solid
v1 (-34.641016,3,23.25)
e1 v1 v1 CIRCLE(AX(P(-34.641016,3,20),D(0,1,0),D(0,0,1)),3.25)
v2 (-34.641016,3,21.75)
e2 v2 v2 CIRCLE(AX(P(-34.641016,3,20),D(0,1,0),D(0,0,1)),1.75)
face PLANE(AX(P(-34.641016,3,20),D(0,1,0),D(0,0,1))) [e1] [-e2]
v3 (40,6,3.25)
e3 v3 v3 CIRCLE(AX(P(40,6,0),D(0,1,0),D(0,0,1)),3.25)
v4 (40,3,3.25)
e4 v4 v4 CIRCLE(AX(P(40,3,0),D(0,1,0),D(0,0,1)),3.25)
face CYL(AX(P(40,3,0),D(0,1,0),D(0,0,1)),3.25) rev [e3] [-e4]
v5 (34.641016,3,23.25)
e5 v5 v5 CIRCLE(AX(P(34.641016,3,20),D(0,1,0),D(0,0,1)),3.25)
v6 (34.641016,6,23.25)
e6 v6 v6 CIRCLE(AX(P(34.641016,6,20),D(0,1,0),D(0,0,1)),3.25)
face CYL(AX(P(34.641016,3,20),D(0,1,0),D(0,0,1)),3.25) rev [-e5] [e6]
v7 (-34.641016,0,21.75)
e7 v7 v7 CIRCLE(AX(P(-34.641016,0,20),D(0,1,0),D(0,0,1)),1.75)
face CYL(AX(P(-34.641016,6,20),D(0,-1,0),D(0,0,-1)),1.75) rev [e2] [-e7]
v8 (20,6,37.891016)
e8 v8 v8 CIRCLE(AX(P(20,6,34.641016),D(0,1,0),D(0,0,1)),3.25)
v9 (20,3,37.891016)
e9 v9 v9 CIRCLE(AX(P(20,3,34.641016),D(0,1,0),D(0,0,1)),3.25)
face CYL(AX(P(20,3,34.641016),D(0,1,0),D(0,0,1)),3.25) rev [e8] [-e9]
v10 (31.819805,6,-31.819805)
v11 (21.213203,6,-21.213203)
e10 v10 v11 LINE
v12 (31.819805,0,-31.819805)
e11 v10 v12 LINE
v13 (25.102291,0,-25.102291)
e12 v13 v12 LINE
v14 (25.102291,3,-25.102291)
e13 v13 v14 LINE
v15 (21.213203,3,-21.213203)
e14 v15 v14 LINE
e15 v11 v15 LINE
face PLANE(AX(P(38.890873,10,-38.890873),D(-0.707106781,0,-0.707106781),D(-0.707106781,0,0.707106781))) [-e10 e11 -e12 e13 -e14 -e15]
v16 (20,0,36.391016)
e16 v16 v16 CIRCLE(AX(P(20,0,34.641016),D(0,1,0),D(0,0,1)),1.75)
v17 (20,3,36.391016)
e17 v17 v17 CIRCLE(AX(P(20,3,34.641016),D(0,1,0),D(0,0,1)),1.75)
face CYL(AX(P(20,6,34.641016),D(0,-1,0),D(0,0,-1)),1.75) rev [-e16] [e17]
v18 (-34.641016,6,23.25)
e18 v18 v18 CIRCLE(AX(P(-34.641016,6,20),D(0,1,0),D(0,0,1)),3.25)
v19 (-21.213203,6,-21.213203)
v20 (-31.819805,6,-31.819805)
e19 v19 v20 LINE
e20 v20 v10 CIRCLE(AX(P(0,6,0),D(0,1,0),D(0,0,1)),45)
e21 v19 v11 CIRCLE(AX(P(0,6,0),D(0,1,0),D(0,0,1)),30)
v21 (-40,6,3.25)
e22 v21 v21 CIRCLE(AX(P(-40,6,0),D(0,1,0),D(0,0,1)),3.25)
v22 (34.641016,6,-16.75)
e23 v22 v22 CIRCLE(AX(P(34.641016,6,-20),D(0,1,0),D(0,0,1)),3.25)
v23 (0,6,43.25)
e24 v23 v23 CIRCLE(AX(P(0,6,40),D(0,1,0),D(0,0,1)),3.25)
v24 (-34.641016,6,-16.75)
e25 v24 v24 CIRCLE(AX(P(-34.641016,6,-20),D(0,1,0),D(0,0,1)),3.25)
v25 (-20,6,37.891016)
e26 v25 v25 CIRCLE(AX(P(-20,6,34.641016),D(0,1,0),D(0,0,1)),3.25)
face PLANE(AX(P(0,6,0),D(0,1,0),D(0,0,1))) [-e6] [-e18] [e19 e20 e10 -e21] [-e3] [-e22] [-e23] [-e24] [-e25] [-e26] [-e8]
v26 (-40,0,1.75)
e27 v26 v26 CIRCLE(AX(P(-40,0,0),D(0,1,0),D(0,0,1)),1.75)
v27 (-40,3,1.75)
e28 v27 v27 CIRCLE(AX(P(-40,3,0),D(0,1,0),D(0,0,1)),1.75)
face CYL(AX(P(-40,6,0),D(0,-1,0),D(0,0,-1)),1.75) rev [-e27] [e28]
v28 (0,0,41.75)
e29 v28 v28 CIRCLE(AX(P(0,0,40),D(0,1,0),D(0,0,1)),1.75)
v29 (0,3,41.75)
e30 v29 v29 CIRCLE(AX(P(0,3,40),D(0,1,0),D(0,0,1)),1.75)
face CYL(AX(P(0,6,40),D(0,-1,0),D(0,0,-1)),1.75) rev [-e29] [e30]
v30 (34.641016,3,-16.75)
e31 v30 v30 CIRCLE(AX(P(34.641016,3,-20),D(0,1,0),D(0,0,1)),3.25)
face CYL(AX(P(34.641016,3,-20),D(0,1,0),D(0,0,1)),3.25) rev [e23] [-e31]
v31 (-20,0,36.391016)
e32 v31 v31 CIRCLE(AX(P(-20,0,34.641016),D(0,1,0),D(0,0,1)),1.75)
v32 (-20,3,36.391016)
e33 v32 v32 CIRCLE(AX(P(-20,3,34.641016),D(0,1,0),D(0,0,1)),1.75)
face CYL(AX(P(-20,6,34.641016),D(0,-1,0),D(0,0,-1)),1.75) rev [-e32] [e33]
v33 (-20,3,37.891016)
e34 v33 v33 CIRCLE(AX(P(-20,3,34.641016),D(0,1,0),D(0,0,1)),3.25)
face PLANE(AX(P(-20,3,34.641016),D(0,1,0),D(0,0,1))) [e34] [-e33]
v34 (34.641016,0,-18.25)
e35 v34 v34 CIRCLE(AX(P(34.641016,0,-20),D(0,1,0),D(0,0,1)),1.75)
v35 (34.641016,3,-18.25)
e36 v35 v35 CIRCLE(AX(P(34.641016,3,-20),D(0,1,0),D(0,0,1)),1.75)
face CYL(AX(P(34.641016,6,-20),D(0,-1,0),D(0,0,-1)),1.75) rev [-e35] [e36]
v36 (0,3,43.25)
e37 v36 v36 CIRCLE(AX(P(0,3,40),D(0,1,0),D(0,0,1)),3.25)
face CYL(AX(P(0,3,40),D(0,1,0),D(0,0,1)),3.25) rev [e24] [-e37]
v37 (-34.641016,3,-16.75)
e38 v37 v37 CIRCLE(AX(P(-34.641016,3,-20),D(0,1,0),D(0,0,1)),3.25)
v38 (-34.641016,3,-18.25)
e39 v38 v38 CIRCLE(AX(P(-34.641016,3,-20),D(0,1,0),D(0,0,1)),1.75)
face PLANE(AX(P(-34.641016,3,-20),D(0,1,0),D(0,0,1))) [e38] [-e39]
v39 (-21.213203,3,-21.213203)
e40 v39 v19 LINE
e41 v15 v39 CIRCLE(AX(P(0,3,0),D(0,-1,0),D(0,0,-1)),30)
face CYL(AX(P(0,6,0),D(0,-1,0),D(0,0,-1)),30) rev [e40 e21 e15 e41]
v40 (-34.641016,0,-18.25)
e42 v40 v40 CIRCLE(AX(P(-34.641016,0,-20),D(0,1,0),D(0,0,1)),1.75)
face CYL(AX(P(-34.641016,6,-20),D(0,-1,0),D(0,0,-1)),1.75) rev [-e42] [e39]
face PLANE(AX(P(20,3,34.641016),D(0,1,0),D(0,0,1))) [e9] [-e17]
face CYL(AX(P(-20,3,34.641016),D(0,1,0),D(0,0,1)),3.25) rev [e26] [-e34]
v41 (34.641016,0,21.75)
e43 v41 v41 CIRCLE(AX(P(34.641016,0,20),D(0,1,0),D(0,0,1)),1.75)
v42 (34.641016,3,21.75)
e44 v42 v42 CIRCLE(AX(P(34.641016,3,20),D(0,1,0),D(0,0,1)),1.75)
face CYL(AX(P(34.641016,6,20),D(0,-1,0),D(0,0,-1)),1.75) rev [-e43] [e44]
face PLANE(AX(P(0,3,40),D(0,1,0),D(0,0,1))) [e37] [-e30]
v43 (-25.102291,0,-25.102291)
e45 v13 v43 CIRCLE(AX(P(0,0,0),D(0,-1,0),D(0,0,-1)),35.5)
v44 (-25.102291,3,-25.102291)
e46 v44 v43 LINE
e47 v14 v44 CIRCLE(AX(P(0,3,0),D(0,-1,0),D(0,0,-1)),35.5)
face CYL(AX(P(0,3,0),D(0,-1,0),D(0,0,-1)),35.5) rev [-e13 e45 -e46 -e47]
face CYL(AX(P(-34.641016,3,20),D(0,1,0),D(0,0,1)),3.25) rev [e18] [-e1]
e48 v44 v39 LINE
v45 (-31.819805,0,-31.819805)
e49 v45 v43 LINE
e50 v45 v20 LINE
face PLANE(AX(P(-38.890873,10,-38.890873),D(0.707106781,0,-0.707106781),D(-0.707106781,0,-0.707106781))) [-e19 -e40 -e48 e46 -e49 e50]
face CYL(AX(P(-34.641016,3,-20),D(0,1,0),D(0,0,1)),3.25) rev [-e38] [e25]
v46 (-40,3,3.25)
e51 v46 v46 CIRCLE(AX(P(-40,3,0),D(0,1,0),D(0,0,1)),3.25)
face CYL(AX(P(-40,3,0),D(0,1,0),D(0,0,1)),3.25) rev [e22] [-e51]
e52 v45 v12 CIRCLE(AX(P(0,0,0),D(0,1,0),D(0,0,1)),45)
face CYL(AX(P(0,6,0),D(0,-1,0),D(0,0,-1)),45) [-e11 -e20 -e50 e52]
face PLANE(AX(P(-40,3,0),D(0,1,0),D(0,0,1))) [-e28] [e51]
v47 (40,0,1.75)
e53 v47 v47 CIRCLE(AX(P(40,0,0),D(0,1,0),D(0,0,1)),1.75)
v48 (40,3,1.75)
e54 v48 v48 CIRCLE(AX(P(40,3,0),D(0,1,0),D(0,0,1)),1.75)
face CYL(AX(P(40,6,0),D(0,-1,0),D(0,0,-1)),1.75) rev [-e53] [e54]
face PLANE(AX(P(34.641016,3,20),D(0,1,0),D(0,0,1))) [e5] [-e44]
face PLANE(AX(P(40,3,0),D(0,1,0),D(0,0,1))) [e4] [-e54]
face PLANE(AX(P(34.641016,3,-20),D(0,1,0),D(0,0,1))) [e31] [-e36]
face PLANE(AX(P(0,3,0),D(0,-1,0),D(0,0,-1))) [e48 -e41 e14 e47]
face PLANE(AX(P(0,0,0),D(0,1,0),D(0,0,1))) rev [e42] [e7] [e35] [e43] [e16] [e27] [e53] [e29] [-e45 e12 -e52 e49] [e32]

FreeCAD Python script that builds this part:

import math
import FreeCAD as App
import Part
import Sketcher

doc = App.newDocument("Part")
params = doc.addObject("Spreadsheet::Sheet", "Params")
for row, (alias, value) in enumerate([
    ("sketch1_diameter", "90 mm"),
    ("sketch1_diameter2", "60 mm"),
    ("sketch1_diameter3", "3.5 mm"),
    ("pad1_length", "6 mm"),
    ("sketch2_diameter", "71 mm"),
    ("pocket1_length", "3 mm"),
    ("sketch3_diameter", "6.5 mm"),
    ("pocket2_length", "3 mm"),
    ("sketch4_radius", "55 mm"),
    ("pocket3_length", "10 mm"),
], start=1):
    params.set(f"A{row}", alias)
    params.set(f"B{row}", "=" + value)
    params.setAlias(f"B{row}", alias)

body = doc.addObject("PartDesign::Body", "Body")

# Sketch on XZ plane
sketch1 = doc.addObject("Sketcher::SketchObject", "Sketch")
body.addObject(sketch1)
sketch1.AttachmentSupport = (doc.XZ_Plane, [""])
sketch1.MapMode = "FlatFace"
sketch1.addGeometry(Part.Circle(App.Vector(0, 0, 0), App.Vector(0, 0, 1), 45), False)
sketch1.addGeometry(Part.Circle(App.Vector(-34.6, -20, 0), App.Vector(0, 0, 1), 1.8), False)
sketch1.addGeometry(Part.Circle(App.Vector(-20, -34.6, 0), App.Vector(0, 0, 1), 1.8), False)
sketch1.addGeometry(Part.Circle(App.Vector(0, -40, 0), App.Vector(0, 0, 1), 1.8), False)
sketch1.addGeometry(Part.Circle(App.Vector(-40, 0, 0), App.Vector(0, 0, 1), 1.8), False)
sketch1.addGeometry(Part.Circle(App.Vector(-34.6, 20, 0), App.Vector(0, 0, 1), 1.8), False)
sketch1.addGeometry(Part.Circle(App.Vector(-20, 34.6, 0), App.Vector(0, 0, 1), 1.8), False)
sketch1.addGeometry(Part.Circle(App.Vector(20, -34.6, 0), App.Vector(0, 0, 1), 1.8), False)
sketch1.addGeometry(Part.Circle(App.Vector(34.6, -20, 0), App.Vector(0, 0, 1), 1.8), False)
sketch1.addGeometry(Part.Circle(App.Vector(40, 0, 0), App.Vector(0, 0, 1), 1.8), False)
sketch1.addGeometry(Part.Circle(App.Vector(0, 0, 0), App.Vector(0, 0, 1), 30), False)
sketch1.addGeometry(Part.Circle(App.Vector(0, 40, 0), App.Vector(0, 0, 1), 1.8), False)
sketch1.addGeometry(Part.Circle(App.Vector(20, 34.6, 0), App.Vector(0, 0, 1), 1.8), False)
sketch1.addGeometry(Part.Circle(App.Vector(34.6, 20, 0), App.Vector(0, 0, 1), 1.8), False)
sketch1.addConstraint(Sketcher.Constraint("Coincident", 0, 3, -1, 1))
sketch1.addConstraint(Sketcher.Constraint("Coincident", 10, 3, -1, 1))
sketch1.addConstraint(Sketcher.Constraint("Equal", 1, 2))
sketch1.addConstraint(Sketcher.Constraint("Equal", 2, 3))
sketch1.addConstraint(Sketcher.Constraint("Equal", 3, 4))
sketch1.addConstraint(Sketcher.Constraint("Equal", 4, 5))
sketch1.addConstraint(Sketcher.Constraint("Equal", 5, 6))
sketch1.addConstraint(Sketcher.Constraint("Equal", 6, 7))
sketch1.addConstraint(Sketcher.Constraint("Equal", 7, 8))
sketch1.addConstraint(Sketcher.Constraint("Equal", 8, 9))
sketch1.addConstraint(Sketcher.Constraint("Equal", 9, 11))
sketch1.addConstraint(Sketcher.Constraint("Equal", 11, 12))
sketch1.addConstraint(Sketcher.Constraint("Equal", 12, 13))
sketch1.addConstraint(Sketcher.Constraint("Symmetric", 6, 3, 7, 3, -1, 1))
sketch1.addConstraint(Sketcher.Constraint("Symmetric", 5, 3, 8, 3, -1, 1))
sketch1.addConstraint(Sketcher.Constraint("Symmetric", 4, 3, 9, 3, -1, 1))
sketch1.addConstraint(Sketcher.Constraint("Symmetric", 3, 3, 11, 3, -1, 1))
sketch1.addConstraint(Sketcher.Constraint("Symmetric", 2, 3, 12, 3, -1, 1))
sketch1.addConstraint(Sketcher.Constraint("Symmetric", 1, 3, 13, 3, -1, 1))
sketch1.addConstraint(Sketcher.Constraint("Symmetric", 2, 3, 7, 3, -2))
sketch1.addConstraint(Sketcher.Constraint("Symmetric", 1, 3, 8, 3, -2))
sketch1.addConstraint(Sketcher.Constraint("PointOnObject", 3, 3, -2))
sketch1.addConstraint(Sketcher.Constraint("PointOnObject", 4, 3, -1))
sketch1.addConstraint(Sketcher.Constraint("Diameter", 0, 90.0))
sketch1.addConstraint(Sketcher.Constraint("Diameter", 10, 60.0))
sketch1.addConstraint(Sketcher.Constraint("Diameter", 1, 3.5))
sketch1.addConstraint(Sketcher.Constraint("DistanceY", 1, 3, -1, 1, 20.0))
sketch1.addConstraint(Sketcher.Constraint("DistanceX", 2, 3, -1, 1, 20.0))
sketch1.addConstraint(Sketcher.Constraint("DistanceY", 3, 3, -1, 1, 40.0))
sketch1.addConstraint(Sketcher.Constraint("DistanceX", 4, 3, -1, 1, 40.0))
sketch1.addConstraint(Sketcher.Constraint("DistanceX", 1, 3, -1, 1, 34.641016))
sketch1.addConstraint(Sketcher.Constraint("DistanceY", 2, 3, -1, 1, 34.641016))
sketch1.setExpression("Constraints[23]", "Params.sketch1_diameter")
sketch1.setExpression("Constraints[24]", "Params.sketch1_diameter2")
sketch1.setExpression("Constraints[25]", "Params.sketch1_diameter3")
pad1 = doc.addObject("PartDesign::Pad", "Pad")
body.addObject(pad1)
pad1.Profile = sketch1
pad1.setExpression("Length", "Params.pad1_length")
pad1.Reversed = True

# Sketch on XZ plane
sketch2 = doc.addObject("Sketcher::SketchObject", "Sketch001")
body.addObject(sketch2)
sketch2.AttachmentSupport = (doc.XZ_Plane, [""])
sketch2.MapMode = "FlatFace"
sketch2.addGeometry(Part.Circle(App.Vector(0, 0, 0), App.Vector(0, 0, 1), 36), False)
sketch2.addConstraint(Sketcher.Constraint("Coincident", 0, 3, -1, 1))
sketch2.addConstraint(Sketcher.Constraint("Diameter", 0, 71.0))
sketch2.setExpression("Constraints[1]", "Params.sketch2_diameter")
pocket1 = doc.addObject("PartDesign::Pocket", "Pocket")
body.addObject(pocket1)
pocket1.Profile = sketch2
pocket1.setExpression("Length", "Params.pocket1_length")

# Sketch on XZ plane
sketch3 = doc.addObject("Sketcher::SketchObject", "Sketch002")
body.addObject(sketch3)
sketch3.AttachmentSupport = (doc.XZ_Plane, [""])
sketch3.MapMode = "FlatFace"
sketch3.AttachmentOffset = App.Placement(App.Vector(0, 0, -6), App.Rotation())
sketch3.addGeometry(Part.Circle(App.Vector(40, 0, 0), App.Vector(0, 0, 1), 3.2), False)
sketch3.addGeometry(Part.Circle(App.Vector(34.6, 20, 0), App.Vector(0, 0, 1), 3.2), False)
sketch3.addGeometry(Part.Circle(App.Vector(20, 34.6, 0), App.Vector(0, 0, 1), 3.2), False)
sketch3.addGeometry(Part.Circle(App.Vector(0, 40, 0), App.Vector(0, 0, 1), 3.2), False)
sketch3.addGeometry(Part.Circle(App.Vector(-20, 34.6, 0), App.Vector(0, 0, 1), 3.2), False)
sketch3.addGeometry(Part.Circle(App.Vector(-34.6, 20, 0), App.Vector(0, 0, 1), 3.2), False)
sketch3.addGeometry(Part.Circle(App.Vector(-40, 0, 0), App.Vector(0, 0, 1), 3.2), False)
sketch3.addGeometry(Part.Circle(App.Vector(-34.6, -20, 0), App.Vector(0, 0, 1), 3.2), False)
sketch3.addGeometry(Part.Circle(App.Vector(-20, -34.6, 0), App.Vector(0, 0, 1), 3.2), False)
sketch3.addGeometry(Part.Circle(App.Vector(0, -40, 0), App.Vector(0, 0, 1), 3.2), False)
sketch3.addGeometry(Part.Circle(App.Vector(20, -34.6, 0), App.Vector(0, 0, 1), 3.2), False)
sketch3.addGeometry(Part.Circle(App.Vector(34.6, -20, 0), App.Vector(0, 0, 1), 3.2), False)
sketch3.addConstraint(Sketcher.Constraint("Equal", 0, 1))
sketch3.addConstraint(Sketcher.Constraint("Equal", 1, 2))
sketch3.addConstraint(Sketcher.Constraint("Equal", 2, 3))
sketch3.addConstraint(Sketcher.Constraint("Equal", 3, 4))
sketch3.addConstraint(Sketcher.Constraint("Equal", 4, 5))
sketch3.addConstraint(Sketcher.Constraint("Equal", 5, 6))
sketch3.addConstraint(Sketcher.Constraint("Equal", 6, 7))
sketch3.addConstraint(Sketcher.Constraint("Equal", 7, 8))
sketch3.addConstraint(Sketcher.Constraint("Equal", 8, 9))
sketch3.addConstraint(Sketcher.Constraint("Equal", 9, 10))
sketch3.addConstraint(Sketcher.Constraint("Equal", 10, 11))
sketch3.addConstraint(Sketcher.Constraint("Symmetric", 0, 3, 6, 3, -1, 1))
sketch3.addConstraint(Sketcher.Constraint("Symmetric", 1, 3, 7, 3, -1, 1))
sketch3.addConstraint(Sketcher.Constraint("Symmetric", 2, 3, 8, 3, -1, 1))
sketch3.addConstraint(Sketcher.Constraint("Symmetric", 3, 3, 9, 3, -1, 1))
sketch3.addConstraint(Sketcher.Constraint("Symmetric", 4, 3, 10, 3, -1, 1))
sketch3.addConstraint(Sketcher.Constraint("Symmetric", 5, 3, 11, 3, -1, 1))
sketch3.addConstraint(Sketcher.Constraint("Symmetric", 2, 3, 4, 3, -2))
sketch3.addConstraint(Sketcher.Constraint("Symmetric", 1, 3, 5, 3, -2))
sketch3.addConstraint(Sketcher.Constraint("PointOnObject", 0, 3, -1))
sketch3.addConstraint(Sketcher.Constraint("PointOnObject", 3, 3, -2))
sketch3.addConstraint(Sketcher.Constraint("Diameter", 0, 6.5))
sketch3.addConstraint(Sketcher.Constraint("DistanceX", -1, 1, 0, 3, 40.0))
sketch3.addConstraint(Sketcher.Constraint("DistanceY", -1, 1, 1, 3, 20.0))
sketch3.addConstraint(Sketcher.Constraint("DistanceX", -1, 1, 2, 3, 20.0))
sketch3.addConstraint(Sketcher.Constraint("DistanceY", -1, 1, 3, 3, 40.0))
sketch3.addConstraint(Sketcher.Constraint("DistanceX", -1, 1, 1, 3, 34.641016))
sketch3.addConstraint(Sketcher.Constraint("DistanceY", -1, 1, 2, 3, 34.641016))
sketch3.setExpression("Constraints[21]", "Params.sketch3_diameter")
pocket2 = doc.addObject("PartDesign::Pocket", "Pocket001")
body.addObject(pocket2)
pocket2.Profile = sketch3
pocket2.setExpression("Length", "Params.pocket2_length")
pocket2.Reversed = True

# Sketch on XZ plane
sketch4 = doc.addObject("Sketcher::SketchObject", "Sketch003")
body.addObject(sketch4)
sketch4.AttachmentSupport = (doc.XZ_Plane, [""])
sketch4.MapMode = "FlatFace"
sketch4.addGeometry(Part.LineSegment(App.Vector(0, 0, 0), App.Vector(39, -39, 0)), False)
sketch4.addGeometry(Part.ArcOfCircle(Part.Circle(App.Vector(0, 0, 0), App.Vector(0, 0, 1), 55), math.radians(-135), math.radians(-45)), False)
sketch4.addGeometry(Part.LineSegment(App.Vector(-39, -39, 0), App.Vector(0, 0, 0)), False)
sketch4.addConstraint(Sketcher.Constraint("Coincident", 0, 2, 1, 2))
sketch4.addConstraint(Sketcher.Constraint("Coincident", 1, 1, 2, 1))
sketch4.addConstraint(Sketcher.Constraint("Coincident", 2, 2, 0, 1))
sketch4.addConstraint(Sketcher.Constraint("Coincident", 1, 3, -1, 1))
sketch4.addConstraint(Sketcher.Constraint("Coincident", 2, 2, -1, 1))
sketch4.addConstraint(Sketcher.Constraint("Perpendicular", 0, 2))
sketch4.addConstraint(Sketcher.Constraint("Horizontal", 0, 2, 1, 1))
sketch4.addConstraint(Sketcher.Constraint("Radius", 1, 55.0))
sketch4.setExpression("Constraints[7]", "Params.sketch4_radius")
pocket3 = doc.addObject("PartDesign::Pocket", "Pocket002")
body.addObject(pocket3)
pocket3.Profile = sketch4
pocket3.setExpression("Length", "Params.pocket3_length")

doc.recompute()
